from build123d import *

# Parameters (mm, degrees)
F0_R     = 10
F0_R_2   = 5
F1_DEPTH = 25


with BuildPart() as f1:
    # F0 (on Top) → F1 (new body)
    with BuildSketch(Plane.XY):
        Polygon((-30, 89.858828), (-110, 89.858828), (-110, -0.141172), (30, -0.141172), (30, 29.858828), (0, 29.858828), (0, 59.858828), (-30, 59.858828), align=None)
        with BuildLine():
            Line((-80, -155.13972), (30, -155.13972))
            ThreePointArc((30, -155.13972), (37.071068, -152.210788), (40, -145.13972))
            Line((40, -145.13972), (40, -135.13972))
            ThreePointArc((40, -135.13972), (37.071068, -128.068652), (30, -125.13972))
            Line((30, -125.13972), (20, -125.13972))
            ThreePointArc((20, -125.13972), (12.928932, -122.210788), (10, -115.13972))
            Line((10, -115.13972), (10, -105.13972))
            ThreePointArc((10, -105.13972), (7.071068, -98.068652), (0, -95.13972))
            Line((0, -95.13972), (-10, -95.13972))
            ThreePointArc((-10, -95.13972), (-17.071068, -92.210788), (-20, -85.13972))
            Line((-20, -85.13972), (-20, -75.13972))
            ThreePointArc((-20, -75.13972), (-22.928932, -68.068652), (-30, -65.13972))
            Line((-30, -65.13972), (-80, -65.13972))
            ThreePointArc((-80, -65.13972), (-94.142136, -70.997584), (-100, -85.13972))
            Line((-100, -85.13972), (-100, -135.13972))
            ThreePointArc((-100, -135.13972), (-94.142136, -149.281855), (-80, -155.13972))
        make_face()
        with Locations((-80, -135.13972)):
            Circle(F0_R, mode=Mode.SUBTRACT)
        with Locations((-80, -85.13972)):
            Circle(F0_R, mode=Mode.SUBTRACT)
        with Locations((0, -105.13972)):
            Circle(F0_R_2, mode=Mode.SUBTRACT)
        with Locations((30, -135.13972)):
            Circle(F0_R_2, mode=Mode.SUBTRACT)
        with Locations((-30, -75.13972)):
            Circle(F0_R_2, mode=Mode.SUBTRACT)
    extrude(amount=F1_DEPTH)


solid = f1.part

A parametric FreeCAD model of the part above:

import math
import FreeCAD as App
import Part
import Sketcher

V = App.Vector


def add_polygon(sketch, points):
    """Adds a closed chain of lines whose ends are joined by coincident constraints."""
    first, n = sketch.GeometryCount, len(points)
    for a, b in zip(points, points[1:] + points[:1]):
        sketch.addGeometry(Part.LineSegment(App.Vector(*a, 0), App.Vector(*b, 0)), False)
    for i in range(n):
        sketch.addConstraint(Sketcher.Constraint("Coincident", first + i, 2, first + (i + 1) % n, 1))

doc = App.newDocument("Part")
body = doc.addObject("PartDesign::Body", "Body")
body.AllowCompound = True

sketch1 = doc.addObject("Sketcher::SketchObject", "Sketch")
body.addObject(sketch1)
sketch1.AttachmentSupport = (doc.XY_Plane, [""])
sketch1.MapMode = "FlatFace"
add_polygon(sketch1, [(-30, 89.858828), (-110, 89.858828), (-110, -0.141172), (30, -0.141172), (30, 29.858828), (0, 29.858828), (0, 59.858828), (-30, 59.858828)])
sketch1.addGeometry(Part.LineSegment(V(-80, -155.13972, 0), V(30, -155.13972, 0)), False)
sketch1.addGeometry(Part.ArcOfCircle(Part.Circle(V(30.000001, -145.139721, 0), V(0, 0, 1), 9.999999), math.radians(-90.000004), math.radians(0.000004)), False)
sketch1.addGeometry(Part.LineSegment(V(40, -145.13972, 0), V(40, -135.13972, 0)), False)
sketch1.addGeometry(Part.ArcOfCircle(Part.Circle(V(30.000001, -135.139719, 0), V(0, 0, 1), 9.999999), math.radians(-0.000004), math.radians(90.000004)), False)
sketch1.addGeometry(Part.LineSegment(V(30, -125.13972, 0), V(20, -125.13972, 0)), False)
sketch1.addGeometry(Part.ArcOfCircle(Part.Circle(V(19.999999, -115.139721, 0), V(0, 0, 1), 9.999999), math.radians(179.999996), math.radians(270.000004)), False)
sketch1.addGeometry(Part.LineSegment(V(10, -115.13972, 0), V(10, -105.13972, 0)), False)
sketch1.addGeometry(Part.ArcOfCircle(Part.Circle(V(0.000001, -105.139719, 0), V(0, 0, 1), 9.999999), math.radians(-0.000004), math.radians(90.000004)), False)
sketch1.addGeometry(Part.LineSegment(V(0, -95.13972, 0), V(-10, -95.13972, 0)), False)
sketch1.addGeometry(Part.ArcOfCircle(Part.Circle(V(-10.000001, -85.139721, 0), V(0, 0, 1), 9.999999), math.radians(179.999996), math.radians(270.000004)), False)
sketch1.addGeometry(Part.LineSegment(V(-20, -85.13972, 0), V(-20, -75.13972, 0)), False)
sketch1.addGeometry(Part.ArcOfCircle(Part.Circle(V(-29.999999, -75.139719, 0), V(0, 0, 1), 9.999999), math.radians(-0.000004), math.radians(90.000004)), False)
sketch1.addGeometry(Part.LineSegment(V(-30, -65.13972, 0), V(-80, -65.13972, 0)), False)
sketch1.addGeometry(Part.ArcOfCircle(Part.Circle(V(-80.000001, -85.139719, 0), V(0, 0, 1), 19.999999), math.radians(89.999996), math.radians(180.000004)), False)
sketch1.addGeometry(Part.LineSegment(V(-100, -85.13972, 0), V(-100, -135.13972, 0)), False)
sketch1.addGeometry(Part.ArcOfCircle(Part.Circle(V(-80, -135.13972, 0), V(0, 0, 1), 20), math.radians(-179.999999), math.radians(-90.000001)), False)
sketch1.addGeometry(Part.Circle(V(-80, -135.13972, 0), V(0, 0, 1), 10), False)
sketch1.addGeometry(Part.Circle(V(30, -135.13972, 0), V(0, 0, 1), 5), False)
sketch1.addGeometry(Part.Circle(V(-80, -85.13972, 0), V(0, 0, 1), 10), False)
sketch1.addGeometry(Part.Circle(V(-30, -75.13972, 0), V(0, 0, 1), 5), False)
sketch1.addGeometry(Part.Circle(V(0, -105.13972, 0), V(0, 0, 1), 5), False)
sketch1.addConstraint([
    Sketcher.Constraint("Tangent", 8, 2, 9, 1),
    Sketcher.Constraint("Tangent", 9, 2, 10, 1),
    Sketcher.Constraint("Tangent", 10, 2, 11, 1),
    Sketcher.Constraint("Tangent", 11, 2, 12, 1),
    Sketcher.Constraint("Tangent", 12, 2, 13, 2),
    Sketcher.Constraint("Tangent", 13, 1, 14, 1),
    Sketcher.Constraint("Tangent", 14, 2, 15, 1),
    Sketcher.Constraint("Tangent", 15, 2, 16, 1),
    Sketcher.Constraint("Tangent", 16, 2, 17, 2),
    Sketcher.Constraint("Tangent", 17, 1, 18, 1),
    Sketcher.Constraint("Tangent", 18, 2, 19, 1),
    Sketcher.Constraint("Tangent", 19, 2, 20, 1),
    Sketcher.Constraint("Tangent", 20, 2, 21, 1),
    Sketcher.Constraint("Tangent", 21, 2, 22, 1),
    Sketcher.Constraint("Tangent", 22, 2, 23, 1),
    Sketcher.Constraint("Tangent", 23, 2, 8, 1),
    Sketcher.Constraint("Horizontal", 0),
    Sketcher.Constraint("Vertical", 1),
    Sketcher.Constraint("Horizontal", 2),
    Sketcher.Constraint("Vertical", 3),
    Sketcher.Constraint("Horizontal", 4),
    Sketcher.Constraint("Vertical", 5),
    Sketcher.Constraint("Horizontal", 6),
    Sketcher.Constraint("Vertical", 7),
    Sketcher.Constraint("Horizontal", 8),
    Sketcher.Constraint("Vertical", 10),
    Sketcher.Constraint("Horizontal", 12),
    Sketcher.Constraint("Vertical", 14),
    Sketcher.Constraint("Horizontal", 16),
    Sketcher.Constraint("Vertical", 18),
    Sketcher.Constraint("Horizontal", 20),
    Sketcher.Constraint("Vertical", 22),
    Sketcher.Constraint("Coincident", 24, 3, 23, 3),
    Sketcher.Constraint("Coincident", 25, 3, 11, 3),
    Sketcher.Constraint("Coincident", 26, 3, 21, 3),
    Sketcher.Constraint("Coincident", 27, 3, 19, 3),
    Sketcher.Constraint("Coincident", 28, 3, 15, 3),
    Sketcher.Constraint("Equal", 9, 11),
    Sketcher.Constraint("Equal", 11, 13),
    Sketcher.Constraint("Equal", 13, 15),
    Sketcher.Constraint("Equal", 15, 17),
    Sketcher.Constraint("Equal", 17, 19),
    Sketcher.Constraint("Equal", 21, 23),
    Sketcher.Constraint("Equal", 19, 24),
    Sketcher.Constraint("Equal", 24, 26),
    Sketcher.Constraint("Equal", 25, 27),
    Sketcher.Constraint("Equal", 27, 28),
    Sketcher.Constraint("PointOnObject", 15, 3, -2),
    Sketcher.Constraint("PointOnObject", 4, 2, -2),
    Sketcher.Constraint("Horizontal", 17, 3, 21, 3),
    Sketcher.Constraint("Horizontal", 11, 3, 23, 3),
    Sketcher.Constraint("Vertical", 25, 3, 2, 2),
    Sketcher.Constraint("Vertical", 27, 3, 6, 2),
    Sketcher.Constraint("Equal", 4, 6),
    Sketcher.Constraint("Equal", 6, 3),
    Sketcher.Constraint("Equal", 3, 5),
    Sketcher.Constraint("Equal", 5, 7),
    Sketcher.Constraint("Equal", 16, 10),
    Sketcher.Constraint("Equal", 10, 14),
    Sketcher.Constraint("Equal", 20, 22),
    Sketcher.Constraint("Diameter", 24, 20.0),
    Sketcher.Constraint("Diameter", 25, 10.0),
    Sketcher.Constraint("Radius", 21, 19.999999),
    Sketcher.Constraint("DistanceX", 0, 2, 0, 1, 80.0),
    Sketcher.Constraint("DistanceY", 9, 3, -1, 1, 145.139721),
    Sketcher.Constraint("DistanceY", -1, 1, 0, 2, 89.858828),
])
pad1 = doc.addObject("PartDesign::Pad", "Pad")
body.addObject(pad1)
pad1.Profile = sketch1
pad1.Length = 25

doc.recompute()
